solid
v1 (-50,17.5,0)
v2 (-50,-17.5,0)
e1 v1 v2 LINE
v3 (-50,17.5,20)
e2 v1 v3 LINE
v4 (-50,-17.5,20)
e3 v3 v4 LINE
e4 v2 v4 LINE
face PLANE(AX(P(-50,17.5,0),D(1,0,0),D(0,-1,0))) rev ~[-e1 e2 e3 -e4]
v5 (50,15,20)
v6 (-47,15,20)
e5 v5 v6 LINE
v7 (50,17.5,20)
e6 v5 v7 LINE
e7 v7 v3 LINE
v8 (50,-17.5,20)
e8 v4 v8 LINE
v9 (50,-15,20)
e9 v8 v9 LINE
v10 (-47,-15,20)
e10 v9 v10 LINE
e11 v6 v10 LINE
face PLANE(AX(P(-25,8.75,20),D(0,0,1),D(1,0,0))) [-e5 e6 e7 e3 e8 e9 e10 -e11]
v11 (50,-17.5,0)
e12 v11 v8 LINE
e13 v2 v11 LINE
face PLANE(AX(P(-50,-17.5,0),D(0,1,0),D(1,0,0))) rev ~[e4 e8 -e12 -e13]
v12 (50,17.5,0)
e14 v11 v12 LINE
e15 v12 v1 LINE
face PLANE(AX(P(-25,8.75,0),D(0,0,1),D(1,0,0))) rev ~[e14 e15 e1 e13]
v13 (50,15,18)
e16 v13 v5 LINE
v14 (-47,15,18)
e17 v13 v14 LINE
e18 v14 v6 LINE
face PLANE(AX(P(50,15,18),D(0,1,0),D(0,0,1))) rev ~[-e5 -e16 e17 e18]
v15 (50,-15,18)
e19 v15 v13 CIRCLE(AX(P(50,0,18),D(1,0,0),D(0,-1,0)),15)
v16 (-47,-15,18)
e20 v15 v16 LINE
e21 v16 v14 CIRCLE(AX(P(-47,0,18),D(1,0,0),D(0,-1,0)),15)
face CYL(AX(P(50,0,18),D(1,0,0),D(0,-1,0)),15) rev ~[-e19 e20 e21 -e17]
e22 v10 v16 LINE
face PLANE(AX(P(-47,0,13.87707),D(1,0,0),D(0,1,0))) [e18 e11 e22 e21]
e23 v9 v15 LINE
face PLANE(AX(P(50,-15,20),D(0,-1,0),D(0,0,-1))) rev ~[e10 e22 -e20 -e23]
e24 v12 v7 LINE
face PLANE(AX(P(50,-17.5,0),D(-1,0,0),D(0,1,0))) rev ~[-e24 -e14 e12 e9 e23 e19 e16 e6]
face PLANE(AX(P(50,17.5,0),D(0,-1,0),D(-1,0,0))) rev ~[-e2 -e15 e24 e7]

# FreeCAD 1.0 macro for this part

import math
import FreeCAD as App
import Part
import Sketcher

V = App.Vector


def add_polygon(sketch, points):
    """Adds a closed chain of lines whose ends are joined by coincident constraints."""
    first, n = sketch.GeometryCount, len(points)
    for a, b in zip(points, points[1:] + points[:1]):
        sketch.addGeometry(Part.LineSegment(App.Vector(*a, 0), App.Vector(*b, 0)), False)
    for i in range(n):
        sketch.addConstraint(Sketcher.Constraint("Coincident", first + i, 2, first + (i + 1) % n, 1))

doc = App.newDocument("Part")
body = doc.addObject("PartDesign::Body", "Body")

# Sketch on XY plane
sketch1 = body.newObject("Sketcher::SketchObject", "Sketch")
sketch1.AttachmentSupport = (doc.getObject("XY_Plane"), [""])
sketch1.MapMode = "FlatFace"
add_polygon(sketch1, [(-50, 17.5), (-50, -17.5), (50, -17.5), (50, 17.5)])  # lines 0-3
sketch1.addConstraint([
    Sketcher.Constraint("Vertical", 0),
    Sketcher.Constraint("Horizontal", 1),
    Sketcher.Constraint("Vertical", 2),
    Sketcher.Constraint("Horizontal", 3),
    Sketcher.Constraint("Symmetric", 0, 2, 2, 2, -1, 1),
    Sketcher.Constraint("DistanceX", 1, 1, 1, 2, 100.0),
    Sketcher.Constraint("DistanceY", 0, 2, 0, 1, 35.0),
])
pad1 = body.newObject("PartDesign::Pad", "Pad")
pad1.Profile = sketch1
pad1.Length = 20

# Sketch on YZ plane
sketch2 = body.newObject("Sketcher::SketchObject", "Sketch001")
sketch2.AttachmentSupport = (doc.getObject("YZ_Plane"), [""])
sketch2.MapMode = "FlatFace"
sketch2.AttachmentOffset = App.Placement(V(0, 0, 50), App.Rotation())
sketch2.addGeometry([
    Part.ArcOfCircle(Part.Circle(V(0, 18, 0), V(0, 0, 1), 15), math.radians(180), math.radians(360)),
    Part.LineSegment(V(15, 18, 0), V(15, 20, 0)),
    Part.LineSegment(V(15, 20, 0), V(-15, 20, 0)),
    Part.LineSegment(V(-15, 20, 0), V(-15, 18, 0)),
], False)
sketch2.addConstraint([
    Sketcher.Constraint("Tangent", 0, 2, 1, 1),
    Sketcher.Constraint("Coincident", 1, 2, 2, 1),
    Sketcher.Constraint("Coincident", 2, 2, 3, 1),
    Sketcher.Constraint("Tangent", 3, 2, 0, 1),
    Sketcher.Constraint("Vertical", 1),
    Sketcher.Constraint("Horizontal", 2),
    Sketcher.Constraint("Vertical", 3),
    Sketcher.Constraint("PointOnObject", 0, 3, -2),
    Sketcher.Constraint("Radius", 0, 15.0),
    Sketcher.Constraint("DistanceY", 1, 1, 1, 2, 2.0),
    Sketcher.Constraint("DistanceY", -1, 1, 0, 3, 18.0),
])
pocket1 = body.newObject("PartDesign::Pocket", "Pocket")
pocket1.Profile = sketch2
pocket1.Length = 97

doc.recompute()
